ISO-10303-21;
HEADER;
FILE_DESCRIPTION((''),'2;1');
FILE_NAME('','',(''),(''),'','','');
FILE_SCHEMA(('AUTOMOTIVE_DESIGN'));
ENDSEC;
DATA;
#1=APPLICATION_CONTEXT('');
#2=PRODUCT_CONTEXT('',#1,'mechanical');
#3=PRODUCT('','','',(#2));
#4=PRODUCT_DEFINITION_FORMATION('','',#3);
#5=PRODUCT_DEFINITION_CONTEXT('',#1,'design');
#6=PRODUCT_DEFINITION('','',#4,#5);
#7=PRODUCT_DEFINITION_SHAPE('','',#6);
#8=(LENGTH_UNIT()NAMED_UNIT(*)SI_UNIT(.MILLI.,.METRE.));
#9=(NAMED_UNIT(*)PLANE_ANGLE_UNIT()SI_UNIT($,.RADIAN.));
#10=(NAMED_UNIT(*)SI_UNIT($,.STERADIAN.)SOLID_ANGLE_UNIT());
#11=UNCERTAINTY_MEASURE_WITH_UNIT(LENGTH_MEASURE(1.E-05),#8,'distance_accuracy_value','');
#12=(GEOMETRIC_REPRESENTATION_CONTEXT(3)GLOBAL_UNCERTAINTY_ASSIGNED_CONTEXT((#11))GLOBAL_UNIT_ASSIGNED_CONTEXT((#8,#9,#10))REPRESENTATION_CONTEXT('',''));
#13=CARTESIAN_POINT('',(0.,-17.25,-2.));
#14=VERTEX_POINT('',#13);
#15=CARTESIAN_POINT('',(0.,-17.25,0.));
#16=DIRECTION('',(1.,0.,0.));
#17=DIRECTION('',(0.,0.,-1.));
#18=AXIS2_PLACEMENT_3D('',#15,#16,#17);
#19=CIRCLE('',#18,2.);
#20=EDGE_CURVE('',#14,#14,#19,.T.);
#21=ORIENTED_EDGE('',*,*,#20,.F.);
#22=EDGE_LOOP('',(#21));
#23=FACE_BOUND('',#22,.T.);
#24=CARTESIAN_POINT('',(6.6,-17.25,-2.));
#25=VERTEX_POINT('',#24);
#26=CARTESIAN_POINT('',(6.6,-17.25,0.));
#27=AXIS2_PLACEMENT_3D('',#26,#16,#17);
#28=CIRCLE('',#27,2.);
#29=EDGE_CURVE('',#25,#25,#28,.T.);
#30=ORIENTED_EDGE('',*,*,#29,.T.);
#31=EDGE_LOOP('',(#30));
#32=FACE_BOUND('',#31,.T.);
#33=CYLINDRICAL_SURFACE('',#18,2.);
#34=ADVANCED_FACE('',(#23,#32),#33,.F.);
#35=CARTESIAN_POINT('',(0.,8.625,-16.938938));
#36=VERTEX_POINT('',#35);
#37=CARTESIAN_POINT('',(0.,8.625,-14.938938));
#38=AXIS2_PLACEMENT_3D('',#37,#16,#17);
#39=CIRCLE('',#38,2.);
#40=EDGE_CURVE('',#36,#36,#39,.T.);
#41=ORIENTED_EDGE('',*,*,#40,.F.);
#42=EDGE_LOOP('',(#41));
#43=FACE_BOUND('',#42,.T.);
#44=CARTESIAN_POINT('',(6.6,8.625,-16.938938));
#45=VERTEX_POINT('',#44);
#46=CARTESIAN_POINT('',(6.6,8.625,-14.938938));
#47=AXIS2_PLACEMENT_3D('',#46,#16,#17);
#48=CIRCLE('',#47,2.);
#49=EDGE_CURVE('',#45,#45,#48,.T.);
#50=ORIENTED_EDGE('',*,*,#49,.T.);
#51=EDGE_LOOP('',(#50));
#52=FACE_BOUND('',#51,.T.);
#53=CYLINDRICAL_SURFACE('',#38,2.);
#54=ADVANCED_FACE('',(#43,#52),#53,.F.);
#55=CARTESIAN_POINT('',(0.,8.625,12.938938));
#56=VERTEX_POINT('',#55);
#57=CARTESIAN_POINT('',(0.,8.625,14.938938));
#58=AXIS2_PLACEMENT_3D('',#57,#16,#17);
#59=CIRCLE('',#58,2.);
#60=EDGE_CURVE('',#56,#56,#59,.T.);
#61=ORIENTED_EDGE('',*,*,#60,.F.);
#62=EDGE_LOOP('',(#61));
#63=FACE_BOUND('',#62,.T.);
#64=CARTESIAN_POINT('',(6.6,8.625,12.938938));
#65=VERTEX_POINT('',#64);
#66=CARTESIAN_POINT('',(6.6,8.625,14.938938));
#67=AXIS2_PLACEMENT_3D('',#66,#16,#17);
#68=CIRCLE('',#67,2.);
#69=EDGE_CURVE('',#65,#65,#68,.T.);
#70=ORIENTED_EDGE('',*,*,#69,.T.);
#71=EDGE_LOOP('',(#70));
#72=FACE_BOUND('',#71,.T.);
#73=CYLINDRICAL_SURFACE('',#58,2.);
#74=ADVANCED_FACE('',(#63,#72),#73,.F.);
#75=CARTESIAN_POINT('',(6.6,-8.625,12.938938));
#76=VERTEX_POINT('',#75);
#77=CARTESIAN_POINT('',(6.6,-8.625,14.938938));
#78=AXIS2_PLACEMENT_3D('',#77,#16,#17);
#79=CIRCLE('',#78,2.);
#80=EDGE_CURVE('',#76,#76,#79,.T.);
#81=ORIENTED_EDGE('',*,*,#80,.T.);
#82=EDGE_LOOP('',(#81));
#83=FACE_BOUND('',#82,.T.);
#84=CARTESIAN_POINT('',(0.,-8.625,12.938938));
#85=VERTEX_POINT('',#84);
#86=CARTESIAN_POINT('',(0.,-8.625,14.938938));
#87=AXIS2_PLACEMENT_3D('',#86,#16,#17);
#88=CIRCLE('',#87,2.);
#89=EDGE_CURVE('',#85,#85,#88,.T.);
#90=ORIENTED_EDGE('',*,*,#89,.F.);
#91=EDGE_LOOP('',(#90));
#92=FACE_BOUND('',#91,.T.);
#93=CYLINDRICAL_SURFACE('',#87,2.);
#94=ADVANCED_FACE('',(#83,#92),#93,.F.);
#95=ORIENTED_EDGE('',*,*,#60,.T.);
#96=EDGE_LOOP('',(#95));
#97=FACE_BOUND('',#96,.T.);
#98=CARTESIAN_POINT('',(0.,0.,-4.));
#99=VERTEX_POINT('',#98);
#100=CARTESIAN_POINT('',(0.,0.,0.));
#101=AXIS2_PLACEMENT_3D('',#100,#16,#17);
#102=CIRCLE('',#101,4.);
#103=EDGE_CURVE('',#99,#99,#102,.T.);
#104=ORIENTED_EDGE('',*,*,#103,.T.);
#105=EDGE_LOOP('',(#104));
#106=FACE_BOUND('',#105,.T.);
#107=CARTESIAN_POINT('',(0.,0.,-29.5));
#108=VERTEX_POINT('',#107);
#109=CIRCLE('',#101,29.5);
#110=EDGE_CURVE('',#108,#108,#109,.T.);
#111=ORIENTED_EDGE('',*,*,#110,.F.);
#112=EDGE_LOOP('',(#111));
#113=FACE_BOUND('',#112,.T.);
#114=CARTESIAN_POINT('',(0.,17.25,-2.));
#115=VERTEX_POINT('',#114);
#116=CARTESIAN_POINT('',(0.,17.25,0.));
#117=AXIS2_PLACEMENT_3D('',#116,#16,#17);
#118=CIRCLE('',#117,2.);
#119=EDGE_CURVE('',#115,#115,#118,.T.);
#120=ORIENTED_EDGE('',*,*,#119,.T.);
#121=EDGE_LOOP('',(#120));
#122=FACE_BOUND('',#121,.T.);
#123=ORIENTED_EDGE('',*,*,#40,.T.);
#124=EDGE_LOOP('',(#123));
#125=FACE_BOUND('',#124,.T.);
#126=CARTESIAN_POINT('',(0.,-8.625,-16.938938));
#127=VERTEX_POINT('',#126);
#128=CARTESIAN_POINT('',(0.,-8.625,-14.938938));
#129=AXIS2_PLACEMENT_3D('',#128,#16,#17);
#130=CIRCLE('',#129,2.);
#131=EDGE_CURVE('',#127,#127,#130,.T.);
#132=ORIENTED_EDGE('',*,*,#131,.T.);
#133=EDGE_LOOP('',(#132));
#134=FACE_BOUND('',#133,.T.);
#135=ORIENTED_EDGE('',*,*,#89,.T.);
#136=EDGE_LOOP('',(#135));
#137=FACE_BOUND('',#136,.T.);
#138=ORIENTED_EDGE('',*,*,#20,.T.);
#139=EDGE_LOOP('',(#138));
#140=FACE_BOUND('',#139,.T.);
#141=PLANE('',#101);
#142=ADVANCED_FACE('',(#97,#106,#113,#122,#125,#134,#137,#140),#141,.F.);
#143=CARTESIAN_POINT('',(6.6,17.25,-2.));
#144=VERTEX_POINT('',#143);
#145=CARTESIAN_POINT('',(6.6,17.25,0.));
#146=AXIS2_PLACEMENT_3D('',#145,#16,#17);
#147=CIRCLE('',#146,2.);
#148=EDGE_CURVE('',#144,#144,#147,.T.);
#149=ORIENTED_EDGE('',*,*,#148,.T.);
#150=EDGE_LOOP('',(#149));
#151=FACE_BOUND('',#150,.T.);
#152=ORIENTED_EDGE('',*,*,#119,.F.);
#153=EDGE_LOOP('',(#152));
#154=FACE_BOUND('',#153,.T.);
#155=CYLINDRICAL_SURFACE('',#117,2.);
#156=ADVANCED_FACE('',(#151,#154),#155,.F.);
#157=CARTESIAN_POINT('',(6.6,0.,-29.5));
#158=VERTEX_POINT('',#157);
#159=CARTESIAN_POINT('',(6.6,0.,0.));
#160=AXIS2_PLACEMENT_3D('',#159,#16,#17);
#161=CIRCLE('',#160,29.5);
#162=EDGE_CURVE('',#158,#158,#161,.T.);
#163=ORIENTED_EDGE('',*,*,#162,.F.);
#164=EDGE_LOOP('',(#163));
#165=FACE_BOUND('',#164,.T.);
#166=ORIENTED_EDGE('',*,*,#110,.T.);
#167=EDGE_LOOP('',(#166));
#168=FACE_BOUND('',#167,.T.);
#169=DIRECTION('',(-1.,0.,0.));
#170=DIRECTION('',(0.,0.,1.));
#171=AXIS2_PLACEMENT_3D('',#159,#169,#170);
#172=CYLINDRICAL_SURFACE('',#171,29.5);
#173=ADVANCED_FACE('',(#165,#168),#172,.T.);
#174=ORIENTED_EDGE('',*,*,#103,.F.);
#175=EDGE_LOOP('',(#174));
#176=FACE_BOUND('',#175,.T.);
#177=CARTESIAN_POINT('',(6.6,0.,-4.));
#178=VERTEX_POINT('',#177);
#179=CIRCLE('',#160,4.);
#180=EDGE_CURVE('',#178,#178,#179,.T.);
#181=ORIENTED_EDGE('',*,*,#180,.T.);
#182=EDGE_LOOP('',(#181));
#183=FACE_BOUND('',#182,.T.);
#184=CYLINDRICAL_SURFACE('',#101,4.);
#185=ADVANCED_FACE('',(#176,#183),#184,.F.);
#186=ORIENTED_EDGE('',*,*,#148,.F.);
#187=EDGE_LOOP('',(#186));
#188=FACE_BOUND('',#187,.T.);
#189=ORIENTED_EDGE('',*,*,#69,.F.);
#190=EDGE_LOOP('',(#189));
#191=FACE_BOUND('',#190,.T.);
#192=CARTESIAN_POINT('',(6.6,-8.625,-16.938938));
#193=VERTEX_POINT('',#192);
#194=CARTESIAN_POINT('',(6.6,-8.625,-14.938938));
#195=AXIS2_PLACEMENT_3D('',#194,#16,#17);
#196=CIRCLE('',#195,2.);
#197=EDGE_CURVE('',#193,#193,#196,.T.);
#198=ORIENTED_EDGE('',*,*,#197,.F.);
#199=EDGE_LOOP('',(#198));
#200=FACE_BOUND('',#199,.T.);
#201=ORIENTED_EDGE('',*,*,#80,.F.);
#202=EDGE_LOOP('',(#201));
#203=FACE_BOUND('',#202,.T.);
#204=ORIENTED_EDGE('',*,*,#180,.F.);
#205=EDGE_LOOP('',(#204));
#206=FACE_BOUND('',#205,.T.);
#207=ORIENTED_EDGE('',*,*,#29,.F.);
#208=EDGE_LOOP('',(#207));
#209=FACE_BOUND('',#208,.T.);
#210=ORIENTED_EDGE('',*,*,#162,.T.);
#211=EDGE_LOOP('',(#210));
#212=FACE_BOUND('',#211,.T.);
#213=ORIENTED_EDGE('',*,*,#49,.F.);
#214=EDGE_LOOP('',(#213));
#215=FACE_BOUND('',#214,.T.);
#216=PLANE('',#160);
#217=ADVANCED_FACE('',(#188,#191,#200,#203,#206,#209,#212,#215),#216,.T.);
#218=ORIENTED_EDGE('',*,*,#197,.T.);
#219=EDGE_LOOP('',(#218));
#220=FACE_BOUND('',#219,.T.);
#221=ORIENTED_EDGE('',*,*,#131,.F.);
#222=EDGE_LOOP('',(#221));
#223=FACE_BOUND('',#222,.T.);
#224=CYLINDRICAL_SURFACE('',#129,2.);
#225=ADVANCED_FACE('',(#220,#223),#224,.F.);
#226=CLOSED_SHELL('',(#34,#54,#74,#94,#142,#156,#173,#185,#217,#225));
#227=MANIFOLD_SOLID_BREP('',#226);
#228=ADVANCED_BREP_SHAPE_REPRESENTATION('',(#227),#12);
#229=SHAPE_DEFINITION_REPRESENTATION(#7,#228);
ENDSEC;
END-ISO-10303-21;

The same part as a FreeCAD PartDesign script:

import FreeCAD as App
import Part
import Sketcher
Q = App.Units.Quantity

doc = App.newDocument("Part")
body = doc.addObject("PartDesign::Body", "Body")

sketch1 = body.newObject("Sketcher::SketchObject", "Sketch")
sketch1.AttachmentSupport = (doc.getObject("YZ_Plane"), [""])
sketch1.MapMode = "FlatFace"
sketch1.addGeometry(Part.Circle(App.Vector(0, 0, 0), App.Vector(0, 0, 1), 29.5), False)
sketch1.addConstraint([
    Sketcher.Constraint("Coincident", 0, 3, -1, 1),
    Sketcher.Constraint("Diameter", 0, Q("59 mm")),
])
pad1 = body.newObject("PartDesign::Pad", "Pad")
pad1.Profile = sketch1
pad1.Length = 6.6

sketch2 = body.newObject("Sketcher::SketchObject", "Sketch001")
sketch2.AttachmentSupport = (doc.getObject("YZ_Plane"), [""])
sketch2.MapMode = "FlatFace"
sketch2.AttachmentOffset = App.Placement(App.Vector(0, 0, 6.6), App.Rotation())
sketch2.addGeometry([
    Part.Circle(App.Vector(17.25, 0, 0), App.Vector(0, 0, 1), 2),
    Part.Circle(App.Vector(8.625, -14.938938, 0), App.Vector(0, 0, 1), 2),
    Part.Circle(App.Vector(-8.625, -14.938938, 0), App.Vector(0, 0, 1), 2),
    Part.Circle(App.Vector(-17.25, 0, 0), App.Vector(0, 0, 1), 2),
    Part.Circle(App.Vector(-8.625, 14.938938, 0), App.Vector(0, 0, 1), 2),
    Part.Circle(App.Vector(8.625, 14.938938, 0), App.Vector(0, 0, 1), 2),
], False)
sketch2.addConstraint([
    Sketcher.Constraint("Equal", 0, 1),
    Sketcher.Constraint("Equal", 1, 2),
    Sketcher.Constraint("Equal", 2, 3),
    Sketcher.Constraint("Equal", 3, 4),
    Sketcher.Constraint("Equal", 4, 5),
    Sketcher.Constraint("Symmetric", 0, 3, 3, 3, -1, 1),
    Sketcher.Constraint("Symmetric", 1, 3, 4, 3, -1, 1),
    Sketcher.Constraint("Symmetric", 2, 3, 5, 3, -1, 1),
    Sketcher.Constraint("Symmetric", 1, 3, 2, 3, -2),
    Sketcher.Constraint("PointOnObject", 0, 3, -1),
    Sketcher.Constraint("Diameter", 0, Q("4 mm")),
    Sketcher.Constraint("DistanceX", 3, 3, 0, 3, Q("34.5 mm")),
    Sketcher.Constraint("DistanceX", 2, 3, 1, 3, Q("17.25 mm")),
    Sketcher.Constraint("DistanceY", 1, 3, -1, 1, Q("14.938938 mm")),
])
pocket1 = body.newObject("PartDesign::Pocket", "Pocket")
pocket1.Profile = sketch2
pocket1.Length = 6.6

sketch3 = body.newObject("Sketcher::SketchObject", "Sketch002")
sketch3.AttachmentSupport = (doc.getObject("YZ_Plane"), [""])
sketch3.MapMode = "FlatFace"
sketch3.AttachmentOffset = App.Placement(App.Vector(0, 0, 6.6), App.Rotation())
sketch3.addGeometry(Part.Circle(App.Vector(0, 0, 0), App.Vector(0, 0, 1), 4), False)
sketch3.addConstraint([
    Sketcher.Constraint("Coincident", 0, 3, -1, 1),
    Sketcher.Constraint("Diameter", 0, Q("8 mm")),
])
pocket2 = body.newObject("PartDesign::Pocket", "Pocket001")
pocket2.Profile = sketch3
pocket2.Length = 6.6

doc.recompute()
